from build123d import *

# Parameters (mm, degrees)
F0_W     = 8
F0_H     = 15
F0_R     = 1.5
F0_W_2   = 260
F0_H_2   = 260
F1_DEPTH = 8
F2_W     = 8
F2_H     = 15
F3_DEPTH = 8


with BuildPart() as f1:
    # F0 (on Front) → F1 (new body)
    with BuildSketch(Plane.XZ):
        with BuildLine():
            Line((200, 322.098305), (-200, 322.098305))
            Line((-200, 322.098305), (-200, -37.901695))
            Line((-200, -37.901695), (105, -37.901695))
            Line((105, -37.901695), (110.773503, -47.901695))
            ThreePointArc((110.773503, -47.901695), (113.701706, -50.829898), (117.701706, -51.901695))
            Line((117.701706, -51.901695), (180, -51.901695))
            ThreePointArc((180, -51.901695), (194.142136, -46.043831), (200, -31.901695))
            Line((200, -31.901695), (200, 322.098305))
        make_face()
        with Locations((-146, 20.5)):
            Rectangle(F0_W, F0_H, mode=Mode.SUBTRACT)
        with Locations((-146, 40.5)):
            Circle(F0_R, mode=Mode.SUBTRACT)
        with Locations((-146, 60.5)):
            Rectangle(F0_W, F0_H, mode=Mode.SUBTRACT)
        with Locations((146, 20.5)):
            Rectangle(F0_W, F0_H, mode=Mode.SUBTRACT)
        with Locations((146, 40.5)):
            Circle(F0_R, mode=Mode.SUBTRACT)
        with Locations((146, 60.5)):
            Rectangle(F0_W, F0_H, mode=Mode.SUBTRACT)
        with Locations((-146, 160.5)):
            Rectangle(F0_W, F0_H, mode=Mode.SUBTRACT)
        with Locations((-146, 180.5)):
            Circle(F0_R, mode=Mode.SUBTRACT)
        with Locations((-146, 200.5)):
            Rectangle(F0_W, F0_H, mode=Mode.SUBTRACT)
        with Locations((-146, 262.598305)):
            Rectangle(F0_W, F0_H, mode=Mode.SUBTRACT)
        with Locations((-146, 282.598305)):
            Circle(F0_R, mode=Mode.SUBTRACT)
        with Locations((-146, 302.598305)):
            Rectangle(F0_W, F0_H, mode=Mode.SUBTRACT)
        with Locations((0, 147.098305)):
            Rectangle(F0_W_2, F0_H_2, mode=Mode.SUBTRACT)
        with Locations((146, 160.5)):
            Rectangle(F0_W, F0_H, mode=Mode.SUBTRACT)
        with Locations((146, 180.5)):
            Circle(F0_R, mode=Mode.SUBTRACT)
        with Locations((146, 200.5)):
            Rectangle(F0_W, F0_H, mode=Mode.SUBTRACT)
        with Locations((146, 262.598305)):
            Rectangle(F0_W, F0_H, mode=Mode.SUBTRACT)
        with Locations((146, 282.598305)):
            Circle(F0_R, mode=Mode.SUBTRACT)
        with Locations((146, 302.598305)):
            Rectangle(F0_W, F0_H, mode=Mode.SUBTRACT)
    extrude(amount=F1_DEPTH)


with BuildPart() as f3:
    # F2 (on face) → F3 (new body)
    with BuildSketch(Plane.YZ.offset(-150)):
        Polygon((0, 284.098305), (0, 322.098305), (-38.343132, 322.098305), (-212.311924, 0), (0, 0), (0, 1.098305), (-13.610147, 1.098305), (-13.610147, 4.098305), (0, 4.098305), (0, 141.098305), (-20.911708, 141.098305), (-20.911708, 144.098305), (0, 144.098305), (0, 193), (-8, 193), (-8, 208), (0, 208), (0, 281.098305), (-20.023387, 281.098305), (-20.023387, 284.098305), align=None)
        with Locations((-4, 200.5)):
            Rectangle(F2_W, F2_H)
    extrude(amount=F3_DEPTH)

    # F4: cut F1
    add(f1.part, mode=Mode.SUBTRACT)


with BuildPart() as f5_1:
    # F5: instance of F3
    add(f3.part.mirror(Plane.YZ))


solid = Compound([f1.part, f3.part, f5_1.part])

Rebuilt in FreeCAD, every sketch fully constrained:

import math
import FreeCAD as App
import Part
import Sketcher
Q = App.Units.Quantity


def add_polygon(sketch, points):
    """Adds a closed chain of lines whose ends are joined by coincident constraints."""
    first, n = sketch.GeometryCount, len(points)
    for a, b in zip(points, points[1:] + points[:1]):
        sketch.addGeometry(Part.LineSegment(App.Vector(*a, 0), App.Vector(*b, 0)), False)
    for i in range(n):
        sketch.addConstraint(Sketcher.Constraint("Coincident", first + i, 2, first + (i + 1) % n, 1))

doc = App.newDocument("Part")
body = doc.addObject("PartDesign::Body", "Body")

# Sketch on XZ plane
sketch1 = body.newObject("Sketcher::SketchObject", "Sketch")
sketch1.AttachmentSupport = (doc.getObject("XZ_Plane"), [""])
sketch1.MapMode = "FlatFace"
sketch1.addGeometry(Part.LineSegment(App.Vector(200, 322.098305, 0), App.Vector(-200, 322.098305, 0)), False)  # 0
sketch1.addGeometry(Part.LineSegment(App.Vector(-200, 322.098305, 0), App.Vector(-200, -37.901695, 0)), False)  # 1
sketch1.addGeometry(Part.LineSegment(App.Vector(-200, -37.901695, 0), App.Vector(105, -37.901695, 0)), False)  # 2
sketch1.addGeometry(Part.LineSegment(App.Vector(105, -37.901695, 0), App.Vector(110.773503, -47.901695, 0)), False)  # 3
sketch1.addGeometry(Part.ArcOfCircle(Part.Circle(App.Vector(117.701707, -43.901694, 0), App.Vector(0, 0, 1), 8.000001), math.radians(-149.999998), math.radians(-90.000004)), False)  # 4
sketch1.addGeometry(Part.LineSegment(App.Vector(117.701706, -51.901695, 0), App.Vector(180, -51.901695, 0)), False)  # 5
sketch1.addGeometry(Part.ArcOfCircle(Part.Circle(App.Vector(180.000001, -31.901696, 0), App.Vector(0, 0, 1), 19.999999), math.radians(-90.000004), math.radians(0.000004)), False)  # 6
sketch1.addGeometry(Part.LineSegment(App.Vector(200, -31.901695, 0), App.Vector(200, 322.098305, 0)), False)  # 7
add_polygon(sketch1, [(-142, 13), (-150, 13), (-150, 28), (-142, 28)])  # lines 8-11
sketch1.addGeometry(Part.Circle(App.Vector(-146, 40.5, 0), App.Vector(0, 0, 1), 1.5), False)  # 12
add_polygon(sketch1, [(-142, 53), (-150, 53), (-150, 68), (-142, 68)])  # lines 13-16
add_polygon(sketch1, [(-142, 153), (-150, 153), (-150, 168), (-142, 168)])  # lines 17-20
add_polygon(sketch1, [(150, 13), (142, 13), (142, 28), (150, 28)])  # lines 21-24
sketch1.addGeometry(Part.Circle(App.Vector(146, 40.5, 0), App.Vector(0, 0, 1), 1.5), False)  # 25
add_polygon(sketch1, [(150, 53), (142, 53), (142, 68), (150, 68)])  # lines 26-29
add_polygon(sketch1, [(130, 17.098305), (-130, 17.098305), (-130, 277.098305), (130, 277.098305)])  # lines 30-33
add_polygon(sketch1, [(150, 153), (142, 153), (142, 168), (150, 168)])  # lines 34-37
sketch1.addGeometry(Part.Circle(App.Vector(-146, 180.5, 0), App.Vector(0, 0, 1), 1.5), False)  # 38
add_polygon(sketch1, [(-142, 193), (-150, 193), (-150, 208), (-142, 208)])  # lines 39-42
add_polygon(sketch1, [(-142, 255.098305), (-150, 255.098305), (-150, 270.098305), (-142, 270.098305)])  # lines 43-46
sketch1.addGeometry(Part.Circle(App.Vector(-146, 282.598305, 0), App.Vector(0, 0, 1), 1.5), False)  # 47
add_polygon(sketch1, [(-142, 295.098305), (-150, 295.098305), (-150, 310.098305), (-142, 310.098305)])  # lines 48-51
sketch1.addGeometry(Part.Circle(App.Vector(146, 180.5, 0), App.Vector(0, 0, 1), 1.5), False)  # 52
add_polygon(sketch1, [(150, 193), (142, 193), (142, 208), (150, 208)])  # lines 53-56
add_polygon(sketch1, [(150, 255.098305), (142, 255.098305), (142, 270.098305), (150, 270.098305)])  # lines 57-60
sketch1.addGeometry(Part.Circle(App.Vector(146, 282.598305, 0), App.Vector(0, 0, 1), 1.5), False)  # 61
add_polygon(sketch1, [(150, 295.098305), (142, 295.098305), (142, 310.098305), (150, 310.098305)])  # lines 62-65
sketch1.addConstraint([
    Sketcher.Constraint("Coincident", 0, 2, 1, 1),
    Sketcher.Constraint("Coincident", 1, 2, 2, 1),
    Sketcher.Constraint("Coincident", 2, 2, 3, 1),
    Sketcher.Constraint("Tangent", 3, 2, 4, 1),
    Sketcher.Constraint("Tangent", 4, 2, 5, 1),
    Sketcher.Constraint("Tangent", 5, 2, 6, 1),
    Sketcher.Constraint("Tangent", 6, 2, 7, 1),
    Sketcher.Constraint("Coincident", 7, 2, 0, 1),
    Sketcher.Constraint("Horizontal", 0),
    Sketcher.Constraint("Vertical", 1),
    Sketcher.Constraint("Horizontal", 2),
    Sketcher.Constraint("Horizontal", 5),
    Sketcher.Constraint("Vertical", 7),
    Sketcher.Constraint("Horizontal", 8),
    Sketcher.Constraint("Vertical", 9),
    Sketcher.Constraint("Horizontal", 10),
    Sketcher.Constraint("Vertical", 11),
    Sketcher.Constraint("Horizontal", 13),
    Sketcher.Constraint("Vertical", 14),
    Sketcher.Constraint("Horizontal", 15),
    Sketcher.Constraint("Vertical", 16),
    Sketcher.Constraint("Horizontal", 17),
    Sketcher.Constraint("Vertical", 18),
    Sketcher.Constraint("Horizontal", 19),
    Sketcher.Constraint("Vertical", 20),
    Sketcher.Constraint("Horizontal", 21),
    Sketcher.Constraint("Vertical", 22),
    Sketcher.Constraint("Horizontal", 23),
    Sketcher.Constraint("Vertical", 24),
    Sketcher.Constraint("Horizontal", 26),
    Sketcher.Constraint("Vertical", 27),
    Sketcher.Constraint("Horizontal", 28),
    Sketcher.Constraint("Vertical", 29),
    Sketcher.Constraint("Horizontal", 30),
    Sketcher.Constraint("Vertical", 31),
    Sketcher.Constraint("Horizontal", 32),
    Sketcher.Constraint("Vertical", 33),
    Sketcher.Constraint("Horizontal", 34),
    Sketcher.Constraint("Vertical", 35),
    Sketcher.Constraint("Horizontal", 36),
    Sketcher.Constraint("Vertical", 37),
    Sketcher.Constraint("Horizontal", 39),
    Sketcher.Constraint("Vertical", 40),
    Sketcher.Constraint("Horizontal", 41),
    Sketcher.Constraint("Vertical", 42),
    Sketcher.Constraint("Horizontal", 43),
    Sketcher.Constraint("Vertical", 44),
    Sketcher.Constraint("Horizontal", 45),
    Sketcher.Constraint("Vertical", 46),
    Sketcher.Constraint("Horizontal", 48),
    Sketcher.Constraint("Vertical", 49),
    Sketcher.Constraint("Horizontal", 50),
    Sketcher.Constraint("Vertical", 51),
    Sketcher.Constraint("Horizontal", 53),
    Sketcher.Constraint("Vertical", 54),
    Sketcher.Constraint("Horizontal", 55),
    Sketcher.Constraint("Vertical", 56),
    Sketcher.Constraint("Horizontal", 57),
    Sketcher.Constraint("Vertical", 58),
    Sketcher.Constraint("Horizontal", 59),
    Sketcher.Constraint("Vertical", 60),
    Sketcher.Constraint("Horizontal", 62),
    Sketcher.Constraint("Vertical", 63),
    Sketcher.Constraint("Horizontal", 64),
    Sketcher.Constraint("Vertical", 65),
    Sketcher.Constraint("Equal", 12, 25),
    Sketcher.Constraint("Equal", 25, 38),
    Sketcher.Constraint("Equal", 38, 47),
    Sketcher.Constraint("Equal", 47, 52),
    Sketcher.Constraint("Equal", 52, 61),
    Sketcher.Constraint("Symmetric", 12, 3, 25, 3, -2),
    Sketcher.Constraint("Symmetric", 38, 3, 52, 3, -2),
    Sketcher.Constraint("Symmetric", 47, 3, 61, 3, -2),
    Sketcher.Constraint("Symmetric", 11, 2, 21, 2, -2),
    Sketcher.Constraint("Symmetric", 9, 2, 23, 2, -2),
    Sketcher.Constraint("Symmetric", 16, 2, 26, 2, -2),
    Sketcher.Constraint("Symmetric", 14, 2, 28, 2, -2),
    Sketcher.Constraint("Symmetric", 20, 2, 34, 2, -2),
    Sketcher.Constraint("Symmetric", 18, 2, 36, 2, -2),
    Sketcher.Constraint("Symmetric", 42, 2, 53, 2, -2),
    Sketcher.Constraint("Symmetric", 40, 2, 55, 2, -2),
    Sketcher.Constraint("Symmetric", 46, 2, 57, 2, -2),
    Sketcher.Constraint("Symmetric", 44, 2, 59, 2, -2),
    Sketcher.Constraint("Symmetric", 51, 2, 62, 2, -2),
    Sketcher.Constraint("Symmetric", 49, 2, 64, 2, -2),
    Sketcher.Constraint("Vertical", 12, 3, 38, 3),
    Sketcher.Constraint("Vertical", 38, 3, 47, 3),
    Sketcher.Constraint("Vertical", 9, 2, 13, 2),
    Sketcher.Constraint("Vertical", 11, 2, 15, 2),
    Sketcher.Constraint("Vertical", 14, 2, 17, 2),
    Sketcher.Constraint("Vertical", 16, 2, 19, 2),
    Sketcher.Constraint("Vertical", 18, 2, 39, 2),
    Sketcher.Constraint("Vertical", 20, 2, 41, 2),
    Sketcher.Constraint("Vertical", 40, 2, 43, 2),
    Sketcher.Constraint("Vertical", 42, 2, 45, 2),
    Sketcher.Constraint("Vertical", 44, 2, 48, 2),
    Sketcher.Constraint("Vertical", 46, 2, 50, 2),
    Sketcher.Constraint("Equal", 11, 14),
    Sketcher.Constraint("Equal", 16, 18),
    Sketcher.Constraint("Equal", 32, 31),
    Sketcher.Constraint("Equal", 37, 40),
    Sketcher.Constraint("Equal", 42, 44),
    Sketcher.Constraint("Equal", 46, 49),
    Sketcher.Constraint("Diameter", 12, 3.0),
    Sketcher.Constraint("Radius", 4, 8.000001),
    Sketcher.Constraint("Radius", 6, 19.999999),
    Sketcher.Constraint("DistanceX", 0, 2, 0, 1, 400.0),
    Sketcher.Constraint("DistanceX", 2, 1, 2, 2, 305.0),
    Sketcher.Constraint("DistanceX", 8, 2, 8, 1, 8.0),
    Sketcher.Constraint("DistanceX", 30, 2, 30, 1, 260.0),
    Sketcher.Constraint("DistanceY", 1, 2, 1, 1, 360.0),
    Sketcher.Constraint("DistanceY", 7, 1, 7, 2, 354.0),
    Sketcher.Constraint("DistanceY", 9, 1, 9, 2, 15.0),
    Sketcher.Constraint("Angle", 3, Q("-59.999999 deg")),
    Sketcher.Constraint("DistanceX", -1, 1, 6, 3, 180.000001),
    Sketcher.Constraint("DistanceX", 12, 3, -1, 1, 146.0),
    Sketcher.Constraint("DistanceX", 8, 2, -1, 1, 150.0),
    Sketcher.Constraint("DistanceY", -1, 1, 8, 2, 13.0),
    Sketcher.Constraint("DistanceY", -1, 1, 13, 2, 53.0),
    Sketcher.Constraint("DistanceY", -1, 1, 17, 2, 153.0),
    Sketcher.Constraint("DistanceX", 30, 2, -1, 1, 130.0),
    Sketcher.Constraint("DistanceY", -1, 1, 39, 2, 193.0),
    Sketcher.Constraint("DistanceY", -1, 1, 12, 3, 40.5),
    Sketcher.Constraint("DistanceY", -1, 1, 38, 3, 180.5),
    Sketcher.Constraint("DistanceY", 4, 3, -1, 1, 43.901694),
    Sketcher.Constraint("DistanceY", -1, 1, 47, 3, 282.598305),
    Sketcher.Constraint("DistanceY", -1, 1, 30, 2, 17.098305),
    Sketcher.Constraint("DistanceY", -1, 1, 43, 2, 255.098305),
    Sketcher.Constraint("DistanceY", -1, 1, 48, 2, 295.098305),
])
pad1 = body.newObject("PartDesign::Pad", "Pad")
pad1.Profile = sketch1
pad1.Length = 8
body2 = doc.addObject("PartDesign::Body", "Body001")

# Sketch on YZ plane
sketch2 = body2.newObject("Sketcher::SketchObject", "Sketch001")
sketch2.AttachmentSupport = (doc.getObject("YZ_Plane001"), [""])
sketch2.MapMode = "FlatFace"
sketch2.AttachmentOffset = App.Placement(App.Vector(0, 0, -150), App.Rotation())
add_polygon(sketch2, [(0, 284.098305), (0, 322.098305), (-38.343132, 322.098305), (-212.311924, 0), (0, 0), (0, 1.098305), (-13.610147, 1.098305), (-13.610147, 4.098305), (0, 4.098305), (0, 141.098305), (-20.911708, 141.098305), (-20.911708, 144.098305), (0, 144.098305), (0, 281.098305), (-20.023387, 281.098305), (-20.023387, 284.098305)])  # lines 0-15
sketch2.addConstraint([
    Sketcher.Constraint("Vertical", 0),
    Sketcher.Constraint("Horizontal", 1),
    Sketcher.Constraint("Horizontal", 3),
    Sketcher.Constraint("Vertical", 4),
    Sketcher.Constraint("Horizontal", 5),
    Sketcher.Constraint("Vertical", 6),
    Sketcher.Constraint("Horizontal", 7),
    Sketcher.Constraint("Vertical", 8),
    Sketcher.Constraint("Horizontal", 9),
    Sketcher.Constraint("Vertical", 10),
    Sketcher.Constraint("Horizontal", 11),
    Sketcher.Constraint("Vertical", 12),
    Sketcher.Constraint("Horizontal", 13),
    Sketcher.Constraint("Vertical", 14),
    Sketcher.Constraint("Horizontal", 15),
    Sketcher.Constraint("Coincident", 3, 2, -1, 1),
    Sketcher.Constraint("PointOnObject", 0, 2, -2),
    Sketcher.Constraint("PointOnObject", 7, 2, -2),
    Sketcher.Constraint("PointOnObject", 11, 2, -2),
    Sketcher.Constraint("Equal", 6, 10),
    Sketcher.Constraint("Equal", 8, 12),
    Sketcher.Constraint("Equal", 10, 14),
    Sketcher.Constraint("DistanceY", 0, 1, 0, 2, 38.0),
    Sketcher.Constraint("DistanceY", 6, 1, 6, 2, 3.0),
    Sketcher.Constraint("DistanceY", 8, 1, 8, 2, 137.0),
    Sketcher.Constraint("DistanceX", 1, 2, 1, 1, 38.343132),
    Sketcher.Constraint("DistanceX", 9, 2, 9, 1, 20.911708),
    Sketcher.Constraint("Distance", 2, 366.077121),
    Sketcher.Constraint("DistanceX", 3, 1, 3, 2, 212.311924),
    Sketcher.Constraint("DistanceX", 5, 2, 5, 1, 13.610147),
    Sketcher.Constraint("DistanceX", 13, 2, 13, 1, 20.023387),
])
pad2 = body2.newObject("PartDesign::Pad", "Pad001")
pad2.Profile = sketch2
pad2.Length = 8
doc.recompute()

body3 = doc.addObject("PartDesign::Body", "Body002")
body3.BaseFeature = body
boolean = body2.newObject("PartDesign::Boolean", "Boolean")
boolean.Type = "Cut"
boolean.addObjects([body3])
doc.recompute()
body4 = doc.addObject("PartDesign::Body", "Body003")
doc.recompute()

mirroring = doc.addObject("Part::Mirroring", "Mirroring")
mirroring.Source = body2
mirroring.Base = App.Vector(0, 0, 0)
mirroring.Normal = App.Vector(1, 0, 0)
body4.BaseFeature = mirroring
doc.recompute()

doc.recompute()
